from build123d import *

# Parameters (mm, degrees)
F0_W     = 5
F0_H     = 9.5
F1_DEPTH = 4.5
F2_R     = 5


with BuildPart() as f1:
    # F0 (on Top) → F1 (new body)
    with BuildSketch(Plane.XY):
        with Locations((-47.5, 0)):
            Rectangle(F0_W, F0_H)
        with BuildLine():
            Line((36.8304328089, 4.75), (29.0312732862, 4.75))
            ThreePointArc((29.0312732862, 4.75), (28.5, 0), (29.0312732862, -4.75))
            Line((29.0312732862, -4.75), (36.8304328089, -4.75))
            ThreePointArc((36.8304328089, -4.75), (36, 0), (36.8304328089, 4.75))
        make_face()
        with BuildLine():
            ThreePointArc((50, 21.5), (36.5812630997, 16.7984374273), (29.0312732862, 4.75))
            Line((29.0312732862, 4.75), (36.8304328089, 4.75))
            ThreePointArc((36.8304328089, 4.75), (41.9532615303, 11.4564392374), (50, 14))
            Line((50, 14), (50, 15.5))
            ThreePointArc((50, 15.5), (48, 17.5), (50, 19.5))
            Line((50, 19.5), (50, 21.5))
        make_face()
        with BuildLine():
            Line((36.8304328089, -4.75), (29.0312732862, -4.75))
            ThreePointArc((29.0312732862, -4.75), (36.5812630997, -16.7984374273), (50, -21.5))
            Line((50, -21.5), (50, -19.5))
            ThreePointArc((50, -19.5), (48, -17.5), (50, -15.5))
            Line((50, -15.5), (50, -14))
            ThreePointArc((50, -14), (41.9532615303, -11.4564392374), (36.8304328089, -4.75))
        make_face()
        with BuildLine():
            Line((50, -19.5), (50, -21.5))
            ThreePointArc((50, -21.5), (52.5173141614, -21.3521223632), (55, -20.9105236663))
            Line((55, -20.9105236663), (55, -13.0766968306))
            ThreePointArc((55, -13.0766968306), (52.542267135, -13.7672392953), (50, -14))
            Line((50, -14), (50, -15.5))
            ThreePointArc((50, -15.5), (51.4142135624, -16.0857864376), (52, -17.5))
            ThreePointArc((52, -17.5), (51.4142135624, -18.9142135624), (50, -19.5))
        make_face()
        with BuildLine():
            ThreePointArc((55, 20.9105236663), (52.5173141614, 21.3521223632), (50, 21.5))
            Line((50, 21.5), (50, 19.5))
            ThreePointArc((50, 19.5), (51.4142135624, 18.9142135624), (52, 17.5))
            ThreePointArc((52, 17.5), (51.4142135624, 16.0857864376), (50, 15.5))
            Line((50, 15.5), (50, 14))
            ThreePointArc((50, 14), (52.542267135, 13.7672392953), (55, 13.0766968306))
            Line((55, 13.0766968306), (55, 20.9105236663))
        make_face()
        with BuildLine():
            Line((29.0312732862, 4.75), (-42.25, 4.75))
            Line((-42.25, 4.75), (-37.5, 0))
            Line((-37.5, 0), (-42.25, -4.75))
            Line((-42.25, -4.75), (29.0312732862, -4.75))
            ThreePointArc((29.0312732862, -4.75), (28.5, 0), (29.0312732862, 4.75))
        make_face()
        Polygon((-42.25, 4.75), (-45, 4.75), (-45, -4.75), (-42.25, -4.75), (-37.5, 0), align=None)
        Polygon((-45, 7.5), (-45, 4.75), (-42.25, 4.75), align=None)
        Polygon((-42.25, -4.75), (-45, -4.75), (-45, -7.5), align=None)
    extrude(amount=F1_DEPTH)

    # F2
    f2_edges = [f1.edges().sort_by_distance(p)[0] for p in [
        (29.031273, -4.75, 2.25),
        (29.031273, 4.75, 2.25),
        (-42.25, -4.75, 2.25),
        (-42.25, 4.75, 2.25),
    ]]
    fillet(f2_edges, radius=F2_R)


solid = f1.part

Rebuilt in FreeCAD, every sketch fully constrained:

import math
import FreeCAD as App
import Part
import Sketcher


def edges_at(feature, points):
    """Names of the edges that pass closest to the given points."""
    edges = feature.Shape.Edges
    near = lambda p: min(range(len(edges)), key=lambda i: edges[i].distToShape(Part.Vertex(*p))[0])
    return sorted({f"Edge{near(p) + 1}" for p in points})

doc = App.newDocument("Part")
body = doc.addObject("PartDesign::Body", "Body")

# Sketch on XY plane
sketch1 = body.newObject("Sketcher::SketchObject", "Sketch")
sketch1.AttachmentSupport = (doc.getObject("XY_Plane"), [""])
sketch1.MapMode = "FlatFace"
sketch1.addGeometry([
    Part.LineSegment(App.Vector(-50, 4.8, 0), App.Vector(-50, -4.8, 0)),  # 0
    Part.LineSegment(App.Vector(-50, -4.8, 0), App.Vector(-45, -4.8, 0)),  # 1
    Part.LineSegment(App.Vector(-45, -4.8, 0), App.Vector(-45, -7.5, 0)),  # 2
    Part.LineSegment(App.Vector(-45, -7.5, 0), App.Vector(-42.2, -4.8, 0)),  # 3
    Part.LineSegment(App.Vector(-42.2, -4.8, 0), App.Vector(29, -4.8, 0)),  # 4
    Part.ArcOfCircle(Part.Circle(App.Vector(50, 0, 0), App.Vector(0, 0, 1), 21.5), math.radians(-167), math.radians(-90)),  # 5
    Part.ArcOfCircle(Part.Circle(App.Vector(50, 0, 0), App.Vector(0, 0, 1), 21.5), math.radians(-90), math.radians(-76.55)),  # 6
    Part.LineSegment(App.Vector(55, -20.9, 0), App.Vector(55, -13.1, 0)),  # 7
    Part.ArcOfCircle(Part.Circle(App.Vector(50, 0, 0), App.Vector(0, 0, 1), 14), math.radians(-90), math.radians(-69)),  # 8
    Part.ArcOfCircle(Part.Circle(App.Vector(50, 0, 0), App.Vector(0, 0, 1), 14), math.radians(-160), math.radians(-90)),  # 9
    Part.ArcOfCircle(Part.Circle(App.Vector(50, 0, 0), App.Vector(0, 0, 1), 14), math.radians(160), math.radians(200)),  # 10
    Part.ArcOfCircle(Part.Circle(App.Vector(50, 0, 0), App.Vector(0, 0, 1), 14), math.radians(90), math.radians(160)),  # 11
    Part.ArcOfCircle(Part.Circle(App.Vector(50, 0, 0), App.Vector(0, 0, 1), 14), math.radians(69), math.radians(90)),  # 12
    Part.LineSegment(App.Vector(55, 13.1, 0), App.Vector(55, 20.9, 0)),  # 13
    Part.ArcOfCircle(Part.Circle(App.Vector(50, 0, 0), App.Vector(0, 0, 1), 21.5), math.radians(76.55), math.radians(90)),  # 14
    Part.ArcOfCircle(Part.Circle(App.Vector(50, 0, 0), App.Vector(0, 0, 1), 21.5), math.radians(90), math.radians(167)),  # 15
    Part.LineSegment(App.Vector(29, 4.8, 0), App.Vector(-42.2, 4.8, 0)),  # 16
    Part.LineSegment(App.Vector(-42.2, 4.8, 0), App.Vector(-45, 7.5, 0)),  # 17
    Part.LineSegment(App.Vector(-45, 7.5, 0), App.Vector(-45, 4.8, 0)),  # 18
    Part.LineSegment(App.Vector(-45, 4.8, 0), App.Vector(-50, 4.8, 0)),  # 19
    Part.ArcOfCircle(Part.Circle(App.Vector(50, -17.5, 0), App.Vector(0, 0, 1), 2), math.radians(-90), math.radians(0)),  # 20
    Part.ArcOfCircle(Part.Circle(App.Vector(50, -17.5, 0), App.Vector(0, 0, 1), 2), math.radians(90), math.radians(270)),  # 21
    Part.ArcOfCircle(Part.Circle(App.Vector(50, -17.5, 0), App.Vector(0, 0, 1), 2), math.radians(0), math.radians(90)),  # 22
    Part.ArcOfCircle(Part.Circle(App.Vector(50, 17.5, 0), App.Vector(0, 0, 1), 2), math.radians(90), math.radians(270)),  # 23
    Part.ArcOfCircle(Part.Circle(App.Vector(50, 17.5, 0), App.Vector(0, 0, 1), 2), math.radians(0), math.radians(90)),  # 24
    Part.ArcOfCircle(Part.Circle(App.Vector(50, 17.5, 0), App.Vector(0, 0, 1), 2), math.radians(-90), math.radians(0)),  # 25
], False)
sketch1.addConstraint([
    Sketcher.Constraint("Coincident", 0, 2, 1, 1),
    Sketcher.Constraint("Coincident", 1, 2, 2, 1),
    Sketcher.Constraint("Coincident", 2, 2, 3, 1),
    Sketcher.Constraint("Coincident", 3, 2, 4, 1),
    Sketcher.Constraint("Coincident", 4, 2, 5, 1),
    Sketcher.Constraint("Tangent", 5, 2, 6, 1),
    Sketcher.Constraint("Coincident", 6, 2, 7, 1),
    Sketcher.Constraint("Coincident", 7, 2, 8, 2),
    Sketcher.Constraint("Tangent", 8, 1, 9, 2),
    Sketcher.Constraint("Tangent", 9, 1, 10, 2),
    Sketcher.Constraint("Tangent", 10, 1, 11, 2),
    Sketcher.Constraint("Tangent", 11, 1, 12, 2),
    Sketcher.Constraint("Coincident", 12, 1, 13, 1),
    Sketcher.Constraint("Coincident", 13, 2, 14, 1),
    Sketcher.Constraint("Tangent", 14, 2, 15, 1),
    Sketcher.Constraint("Coincident", 15, 2, 16, 1),
    Sketcher.Constraint("Coincident", 16, 2, 17, 1),
    Sketcher.Constraint("Coincident", 17, 2, 18, 1),
    Sketcher.Constraint("Coincident", 18, 2, 19, 1),
    Sketcher.Constraint("Coincident", 19, 2, 0, 1),
    Sketcher.Constraint("Tangent", 20, 1, 21, 2),
    Sketcher.Constraint("Tangent", 21, 1, 22, 2),
    Sketcher.Constraint("Tangent", 22, 1, 20, 2),
    Sketcher.Constraint("Tangent", 23, 1, 24, 2),
    Sketcher.Constraint("Tangent", 24, 1, 25, 2),
    Sketcher.Constraint("Tangent", 25, 1, 23, 2),
    Sketcher.Constraint("Vertical", 0),
    Sketcher.Constraint("Horizontal", 1),
    Sketcher.Constraint("Vertical", 2),
    Sketcher.Constraint("Horizontal", 4),
    Sketcher.Constraint("Vertical", 7),
    Sketcher.Constraint("Vertical", 13),
    Sketcher.Constraint("Horizontal", 16),
    Sketcher.Constraint("Vertical", 18),
    Sketcher.Constraint("Horizontal", 19),
    Sketcher.Constraint("Coincident", 8, 3, 5, 3),
    Sketcher.Constraint("Coincident", 10, 3, 5, 3),
    Sketcher.Constraint("Coincident", 12, 3, 5, 3),
    Sketcher.Constraint("Coincident", 14, 3, 5, 3),
    Sketcher.Constraint("Equal", 5, 6),
    Sketcher.Constraint("Equal", 6, 14),
    Sketcher.Constraint("Equal", 14, 15),
    Sketcher.Constraint("Equal", 22, 23),
    Sketcher.Constraint("Symmetric", 20, 3, 23, 3, -1),
    Sketcher.Constraint("Symmetric", 9, 1, 10, 1, -1),
    Sketcher.Constraint("Symmetric", 3, 2, 16, 2, -1),
    Sketcher.Constraint("Symmetric", 2, 2, 17, 2, -1),
    Sketcher.Constraint("Perpendicular", 3, 17),
    Sketcher.Constraint("Horizontal", 1, 2, 3, 2),
    Sketcher.Constraint("Horizontal", 4, 2, 9, 1),
    Sketcher.Constraint("Horizontal", 16, 2, 18, 2),
    Sketcher.Constraint("Horizontal", 21, 3, 22, 1),
    Sketcher.Constraint("Horizontal", 25, 3, 24, 1),
    Sketcher.Constraint("Vertical", 15, 3, 20, 3),
    Sketcher.Constraint("Vertical", 25, 3, 5, 2),
    Sketcher.Constraint("Vertical", 5, 2, 8, 1),
    Sketcher.Constraint("Vertical", 8, 1, 11, 1),
    Sketcher.Constraint("Vertical", 7, 2, 12, 1),
    Sketcher.Constraint("Vertical", 11, 1, 14, 2),
    Sketcher.Constraint("Vertical", 14, 2, 20, 1),
    Sketcher.Constraint("Vertical", 20, 1, 21, 1),
    Sketcher.Constraint("Vertical", 21, 1, 23, 1),
    Sketcher.Constraint("Vertical", 23, 1, 25, 1),
    Sketcher.Constraint("Radius", 8, 14.0),
    Sketcher.Constraint("Radius", 20, 2.0),
    Sketcher.Constraint("Radius", 5, 21.5),
    Sketcher.Constraint("DistanceX", 1, 1, 1, 2, 5.0),
    Sketcher.Constraint("DistanceY", 0, 2, 0, 1, 9.5),
    Sketcher.Constraint("DistanceX", -1, 1, 5, 3, 50.0),
    Sketcher.Constraint("DistanceX", 0, 2, -1, 1, 50.0),
    Sketcher.Constraint("DistanceX", -1, 1, 6, 2, 55.0),
    Sketcher.Constraint("DistanceY", 5, 2, 20, 3, 4.0),
    Sketcher.Constraint("DistanceY", 2, 2, 17, 2, 15.0),
])
pad1 = body.newObject("PartDesign::Pad", "Pad")
pad1.Profile = sketch1
pad1.Length = 4.5
doc.recompute()

fillet = body.newObject("PartDesign::Fillet", "Fillet")
fillet.Base = (pad1, edges_at(pad1, [
    (29.031, -4.75, 2.25),
    (29.031, 4.75, 2.25),
    (-42.25, -4.75, 2.25),
    (-42.25, 4.75, 2.25),
]))
fillet.Radius = 5

doc.recompute()
